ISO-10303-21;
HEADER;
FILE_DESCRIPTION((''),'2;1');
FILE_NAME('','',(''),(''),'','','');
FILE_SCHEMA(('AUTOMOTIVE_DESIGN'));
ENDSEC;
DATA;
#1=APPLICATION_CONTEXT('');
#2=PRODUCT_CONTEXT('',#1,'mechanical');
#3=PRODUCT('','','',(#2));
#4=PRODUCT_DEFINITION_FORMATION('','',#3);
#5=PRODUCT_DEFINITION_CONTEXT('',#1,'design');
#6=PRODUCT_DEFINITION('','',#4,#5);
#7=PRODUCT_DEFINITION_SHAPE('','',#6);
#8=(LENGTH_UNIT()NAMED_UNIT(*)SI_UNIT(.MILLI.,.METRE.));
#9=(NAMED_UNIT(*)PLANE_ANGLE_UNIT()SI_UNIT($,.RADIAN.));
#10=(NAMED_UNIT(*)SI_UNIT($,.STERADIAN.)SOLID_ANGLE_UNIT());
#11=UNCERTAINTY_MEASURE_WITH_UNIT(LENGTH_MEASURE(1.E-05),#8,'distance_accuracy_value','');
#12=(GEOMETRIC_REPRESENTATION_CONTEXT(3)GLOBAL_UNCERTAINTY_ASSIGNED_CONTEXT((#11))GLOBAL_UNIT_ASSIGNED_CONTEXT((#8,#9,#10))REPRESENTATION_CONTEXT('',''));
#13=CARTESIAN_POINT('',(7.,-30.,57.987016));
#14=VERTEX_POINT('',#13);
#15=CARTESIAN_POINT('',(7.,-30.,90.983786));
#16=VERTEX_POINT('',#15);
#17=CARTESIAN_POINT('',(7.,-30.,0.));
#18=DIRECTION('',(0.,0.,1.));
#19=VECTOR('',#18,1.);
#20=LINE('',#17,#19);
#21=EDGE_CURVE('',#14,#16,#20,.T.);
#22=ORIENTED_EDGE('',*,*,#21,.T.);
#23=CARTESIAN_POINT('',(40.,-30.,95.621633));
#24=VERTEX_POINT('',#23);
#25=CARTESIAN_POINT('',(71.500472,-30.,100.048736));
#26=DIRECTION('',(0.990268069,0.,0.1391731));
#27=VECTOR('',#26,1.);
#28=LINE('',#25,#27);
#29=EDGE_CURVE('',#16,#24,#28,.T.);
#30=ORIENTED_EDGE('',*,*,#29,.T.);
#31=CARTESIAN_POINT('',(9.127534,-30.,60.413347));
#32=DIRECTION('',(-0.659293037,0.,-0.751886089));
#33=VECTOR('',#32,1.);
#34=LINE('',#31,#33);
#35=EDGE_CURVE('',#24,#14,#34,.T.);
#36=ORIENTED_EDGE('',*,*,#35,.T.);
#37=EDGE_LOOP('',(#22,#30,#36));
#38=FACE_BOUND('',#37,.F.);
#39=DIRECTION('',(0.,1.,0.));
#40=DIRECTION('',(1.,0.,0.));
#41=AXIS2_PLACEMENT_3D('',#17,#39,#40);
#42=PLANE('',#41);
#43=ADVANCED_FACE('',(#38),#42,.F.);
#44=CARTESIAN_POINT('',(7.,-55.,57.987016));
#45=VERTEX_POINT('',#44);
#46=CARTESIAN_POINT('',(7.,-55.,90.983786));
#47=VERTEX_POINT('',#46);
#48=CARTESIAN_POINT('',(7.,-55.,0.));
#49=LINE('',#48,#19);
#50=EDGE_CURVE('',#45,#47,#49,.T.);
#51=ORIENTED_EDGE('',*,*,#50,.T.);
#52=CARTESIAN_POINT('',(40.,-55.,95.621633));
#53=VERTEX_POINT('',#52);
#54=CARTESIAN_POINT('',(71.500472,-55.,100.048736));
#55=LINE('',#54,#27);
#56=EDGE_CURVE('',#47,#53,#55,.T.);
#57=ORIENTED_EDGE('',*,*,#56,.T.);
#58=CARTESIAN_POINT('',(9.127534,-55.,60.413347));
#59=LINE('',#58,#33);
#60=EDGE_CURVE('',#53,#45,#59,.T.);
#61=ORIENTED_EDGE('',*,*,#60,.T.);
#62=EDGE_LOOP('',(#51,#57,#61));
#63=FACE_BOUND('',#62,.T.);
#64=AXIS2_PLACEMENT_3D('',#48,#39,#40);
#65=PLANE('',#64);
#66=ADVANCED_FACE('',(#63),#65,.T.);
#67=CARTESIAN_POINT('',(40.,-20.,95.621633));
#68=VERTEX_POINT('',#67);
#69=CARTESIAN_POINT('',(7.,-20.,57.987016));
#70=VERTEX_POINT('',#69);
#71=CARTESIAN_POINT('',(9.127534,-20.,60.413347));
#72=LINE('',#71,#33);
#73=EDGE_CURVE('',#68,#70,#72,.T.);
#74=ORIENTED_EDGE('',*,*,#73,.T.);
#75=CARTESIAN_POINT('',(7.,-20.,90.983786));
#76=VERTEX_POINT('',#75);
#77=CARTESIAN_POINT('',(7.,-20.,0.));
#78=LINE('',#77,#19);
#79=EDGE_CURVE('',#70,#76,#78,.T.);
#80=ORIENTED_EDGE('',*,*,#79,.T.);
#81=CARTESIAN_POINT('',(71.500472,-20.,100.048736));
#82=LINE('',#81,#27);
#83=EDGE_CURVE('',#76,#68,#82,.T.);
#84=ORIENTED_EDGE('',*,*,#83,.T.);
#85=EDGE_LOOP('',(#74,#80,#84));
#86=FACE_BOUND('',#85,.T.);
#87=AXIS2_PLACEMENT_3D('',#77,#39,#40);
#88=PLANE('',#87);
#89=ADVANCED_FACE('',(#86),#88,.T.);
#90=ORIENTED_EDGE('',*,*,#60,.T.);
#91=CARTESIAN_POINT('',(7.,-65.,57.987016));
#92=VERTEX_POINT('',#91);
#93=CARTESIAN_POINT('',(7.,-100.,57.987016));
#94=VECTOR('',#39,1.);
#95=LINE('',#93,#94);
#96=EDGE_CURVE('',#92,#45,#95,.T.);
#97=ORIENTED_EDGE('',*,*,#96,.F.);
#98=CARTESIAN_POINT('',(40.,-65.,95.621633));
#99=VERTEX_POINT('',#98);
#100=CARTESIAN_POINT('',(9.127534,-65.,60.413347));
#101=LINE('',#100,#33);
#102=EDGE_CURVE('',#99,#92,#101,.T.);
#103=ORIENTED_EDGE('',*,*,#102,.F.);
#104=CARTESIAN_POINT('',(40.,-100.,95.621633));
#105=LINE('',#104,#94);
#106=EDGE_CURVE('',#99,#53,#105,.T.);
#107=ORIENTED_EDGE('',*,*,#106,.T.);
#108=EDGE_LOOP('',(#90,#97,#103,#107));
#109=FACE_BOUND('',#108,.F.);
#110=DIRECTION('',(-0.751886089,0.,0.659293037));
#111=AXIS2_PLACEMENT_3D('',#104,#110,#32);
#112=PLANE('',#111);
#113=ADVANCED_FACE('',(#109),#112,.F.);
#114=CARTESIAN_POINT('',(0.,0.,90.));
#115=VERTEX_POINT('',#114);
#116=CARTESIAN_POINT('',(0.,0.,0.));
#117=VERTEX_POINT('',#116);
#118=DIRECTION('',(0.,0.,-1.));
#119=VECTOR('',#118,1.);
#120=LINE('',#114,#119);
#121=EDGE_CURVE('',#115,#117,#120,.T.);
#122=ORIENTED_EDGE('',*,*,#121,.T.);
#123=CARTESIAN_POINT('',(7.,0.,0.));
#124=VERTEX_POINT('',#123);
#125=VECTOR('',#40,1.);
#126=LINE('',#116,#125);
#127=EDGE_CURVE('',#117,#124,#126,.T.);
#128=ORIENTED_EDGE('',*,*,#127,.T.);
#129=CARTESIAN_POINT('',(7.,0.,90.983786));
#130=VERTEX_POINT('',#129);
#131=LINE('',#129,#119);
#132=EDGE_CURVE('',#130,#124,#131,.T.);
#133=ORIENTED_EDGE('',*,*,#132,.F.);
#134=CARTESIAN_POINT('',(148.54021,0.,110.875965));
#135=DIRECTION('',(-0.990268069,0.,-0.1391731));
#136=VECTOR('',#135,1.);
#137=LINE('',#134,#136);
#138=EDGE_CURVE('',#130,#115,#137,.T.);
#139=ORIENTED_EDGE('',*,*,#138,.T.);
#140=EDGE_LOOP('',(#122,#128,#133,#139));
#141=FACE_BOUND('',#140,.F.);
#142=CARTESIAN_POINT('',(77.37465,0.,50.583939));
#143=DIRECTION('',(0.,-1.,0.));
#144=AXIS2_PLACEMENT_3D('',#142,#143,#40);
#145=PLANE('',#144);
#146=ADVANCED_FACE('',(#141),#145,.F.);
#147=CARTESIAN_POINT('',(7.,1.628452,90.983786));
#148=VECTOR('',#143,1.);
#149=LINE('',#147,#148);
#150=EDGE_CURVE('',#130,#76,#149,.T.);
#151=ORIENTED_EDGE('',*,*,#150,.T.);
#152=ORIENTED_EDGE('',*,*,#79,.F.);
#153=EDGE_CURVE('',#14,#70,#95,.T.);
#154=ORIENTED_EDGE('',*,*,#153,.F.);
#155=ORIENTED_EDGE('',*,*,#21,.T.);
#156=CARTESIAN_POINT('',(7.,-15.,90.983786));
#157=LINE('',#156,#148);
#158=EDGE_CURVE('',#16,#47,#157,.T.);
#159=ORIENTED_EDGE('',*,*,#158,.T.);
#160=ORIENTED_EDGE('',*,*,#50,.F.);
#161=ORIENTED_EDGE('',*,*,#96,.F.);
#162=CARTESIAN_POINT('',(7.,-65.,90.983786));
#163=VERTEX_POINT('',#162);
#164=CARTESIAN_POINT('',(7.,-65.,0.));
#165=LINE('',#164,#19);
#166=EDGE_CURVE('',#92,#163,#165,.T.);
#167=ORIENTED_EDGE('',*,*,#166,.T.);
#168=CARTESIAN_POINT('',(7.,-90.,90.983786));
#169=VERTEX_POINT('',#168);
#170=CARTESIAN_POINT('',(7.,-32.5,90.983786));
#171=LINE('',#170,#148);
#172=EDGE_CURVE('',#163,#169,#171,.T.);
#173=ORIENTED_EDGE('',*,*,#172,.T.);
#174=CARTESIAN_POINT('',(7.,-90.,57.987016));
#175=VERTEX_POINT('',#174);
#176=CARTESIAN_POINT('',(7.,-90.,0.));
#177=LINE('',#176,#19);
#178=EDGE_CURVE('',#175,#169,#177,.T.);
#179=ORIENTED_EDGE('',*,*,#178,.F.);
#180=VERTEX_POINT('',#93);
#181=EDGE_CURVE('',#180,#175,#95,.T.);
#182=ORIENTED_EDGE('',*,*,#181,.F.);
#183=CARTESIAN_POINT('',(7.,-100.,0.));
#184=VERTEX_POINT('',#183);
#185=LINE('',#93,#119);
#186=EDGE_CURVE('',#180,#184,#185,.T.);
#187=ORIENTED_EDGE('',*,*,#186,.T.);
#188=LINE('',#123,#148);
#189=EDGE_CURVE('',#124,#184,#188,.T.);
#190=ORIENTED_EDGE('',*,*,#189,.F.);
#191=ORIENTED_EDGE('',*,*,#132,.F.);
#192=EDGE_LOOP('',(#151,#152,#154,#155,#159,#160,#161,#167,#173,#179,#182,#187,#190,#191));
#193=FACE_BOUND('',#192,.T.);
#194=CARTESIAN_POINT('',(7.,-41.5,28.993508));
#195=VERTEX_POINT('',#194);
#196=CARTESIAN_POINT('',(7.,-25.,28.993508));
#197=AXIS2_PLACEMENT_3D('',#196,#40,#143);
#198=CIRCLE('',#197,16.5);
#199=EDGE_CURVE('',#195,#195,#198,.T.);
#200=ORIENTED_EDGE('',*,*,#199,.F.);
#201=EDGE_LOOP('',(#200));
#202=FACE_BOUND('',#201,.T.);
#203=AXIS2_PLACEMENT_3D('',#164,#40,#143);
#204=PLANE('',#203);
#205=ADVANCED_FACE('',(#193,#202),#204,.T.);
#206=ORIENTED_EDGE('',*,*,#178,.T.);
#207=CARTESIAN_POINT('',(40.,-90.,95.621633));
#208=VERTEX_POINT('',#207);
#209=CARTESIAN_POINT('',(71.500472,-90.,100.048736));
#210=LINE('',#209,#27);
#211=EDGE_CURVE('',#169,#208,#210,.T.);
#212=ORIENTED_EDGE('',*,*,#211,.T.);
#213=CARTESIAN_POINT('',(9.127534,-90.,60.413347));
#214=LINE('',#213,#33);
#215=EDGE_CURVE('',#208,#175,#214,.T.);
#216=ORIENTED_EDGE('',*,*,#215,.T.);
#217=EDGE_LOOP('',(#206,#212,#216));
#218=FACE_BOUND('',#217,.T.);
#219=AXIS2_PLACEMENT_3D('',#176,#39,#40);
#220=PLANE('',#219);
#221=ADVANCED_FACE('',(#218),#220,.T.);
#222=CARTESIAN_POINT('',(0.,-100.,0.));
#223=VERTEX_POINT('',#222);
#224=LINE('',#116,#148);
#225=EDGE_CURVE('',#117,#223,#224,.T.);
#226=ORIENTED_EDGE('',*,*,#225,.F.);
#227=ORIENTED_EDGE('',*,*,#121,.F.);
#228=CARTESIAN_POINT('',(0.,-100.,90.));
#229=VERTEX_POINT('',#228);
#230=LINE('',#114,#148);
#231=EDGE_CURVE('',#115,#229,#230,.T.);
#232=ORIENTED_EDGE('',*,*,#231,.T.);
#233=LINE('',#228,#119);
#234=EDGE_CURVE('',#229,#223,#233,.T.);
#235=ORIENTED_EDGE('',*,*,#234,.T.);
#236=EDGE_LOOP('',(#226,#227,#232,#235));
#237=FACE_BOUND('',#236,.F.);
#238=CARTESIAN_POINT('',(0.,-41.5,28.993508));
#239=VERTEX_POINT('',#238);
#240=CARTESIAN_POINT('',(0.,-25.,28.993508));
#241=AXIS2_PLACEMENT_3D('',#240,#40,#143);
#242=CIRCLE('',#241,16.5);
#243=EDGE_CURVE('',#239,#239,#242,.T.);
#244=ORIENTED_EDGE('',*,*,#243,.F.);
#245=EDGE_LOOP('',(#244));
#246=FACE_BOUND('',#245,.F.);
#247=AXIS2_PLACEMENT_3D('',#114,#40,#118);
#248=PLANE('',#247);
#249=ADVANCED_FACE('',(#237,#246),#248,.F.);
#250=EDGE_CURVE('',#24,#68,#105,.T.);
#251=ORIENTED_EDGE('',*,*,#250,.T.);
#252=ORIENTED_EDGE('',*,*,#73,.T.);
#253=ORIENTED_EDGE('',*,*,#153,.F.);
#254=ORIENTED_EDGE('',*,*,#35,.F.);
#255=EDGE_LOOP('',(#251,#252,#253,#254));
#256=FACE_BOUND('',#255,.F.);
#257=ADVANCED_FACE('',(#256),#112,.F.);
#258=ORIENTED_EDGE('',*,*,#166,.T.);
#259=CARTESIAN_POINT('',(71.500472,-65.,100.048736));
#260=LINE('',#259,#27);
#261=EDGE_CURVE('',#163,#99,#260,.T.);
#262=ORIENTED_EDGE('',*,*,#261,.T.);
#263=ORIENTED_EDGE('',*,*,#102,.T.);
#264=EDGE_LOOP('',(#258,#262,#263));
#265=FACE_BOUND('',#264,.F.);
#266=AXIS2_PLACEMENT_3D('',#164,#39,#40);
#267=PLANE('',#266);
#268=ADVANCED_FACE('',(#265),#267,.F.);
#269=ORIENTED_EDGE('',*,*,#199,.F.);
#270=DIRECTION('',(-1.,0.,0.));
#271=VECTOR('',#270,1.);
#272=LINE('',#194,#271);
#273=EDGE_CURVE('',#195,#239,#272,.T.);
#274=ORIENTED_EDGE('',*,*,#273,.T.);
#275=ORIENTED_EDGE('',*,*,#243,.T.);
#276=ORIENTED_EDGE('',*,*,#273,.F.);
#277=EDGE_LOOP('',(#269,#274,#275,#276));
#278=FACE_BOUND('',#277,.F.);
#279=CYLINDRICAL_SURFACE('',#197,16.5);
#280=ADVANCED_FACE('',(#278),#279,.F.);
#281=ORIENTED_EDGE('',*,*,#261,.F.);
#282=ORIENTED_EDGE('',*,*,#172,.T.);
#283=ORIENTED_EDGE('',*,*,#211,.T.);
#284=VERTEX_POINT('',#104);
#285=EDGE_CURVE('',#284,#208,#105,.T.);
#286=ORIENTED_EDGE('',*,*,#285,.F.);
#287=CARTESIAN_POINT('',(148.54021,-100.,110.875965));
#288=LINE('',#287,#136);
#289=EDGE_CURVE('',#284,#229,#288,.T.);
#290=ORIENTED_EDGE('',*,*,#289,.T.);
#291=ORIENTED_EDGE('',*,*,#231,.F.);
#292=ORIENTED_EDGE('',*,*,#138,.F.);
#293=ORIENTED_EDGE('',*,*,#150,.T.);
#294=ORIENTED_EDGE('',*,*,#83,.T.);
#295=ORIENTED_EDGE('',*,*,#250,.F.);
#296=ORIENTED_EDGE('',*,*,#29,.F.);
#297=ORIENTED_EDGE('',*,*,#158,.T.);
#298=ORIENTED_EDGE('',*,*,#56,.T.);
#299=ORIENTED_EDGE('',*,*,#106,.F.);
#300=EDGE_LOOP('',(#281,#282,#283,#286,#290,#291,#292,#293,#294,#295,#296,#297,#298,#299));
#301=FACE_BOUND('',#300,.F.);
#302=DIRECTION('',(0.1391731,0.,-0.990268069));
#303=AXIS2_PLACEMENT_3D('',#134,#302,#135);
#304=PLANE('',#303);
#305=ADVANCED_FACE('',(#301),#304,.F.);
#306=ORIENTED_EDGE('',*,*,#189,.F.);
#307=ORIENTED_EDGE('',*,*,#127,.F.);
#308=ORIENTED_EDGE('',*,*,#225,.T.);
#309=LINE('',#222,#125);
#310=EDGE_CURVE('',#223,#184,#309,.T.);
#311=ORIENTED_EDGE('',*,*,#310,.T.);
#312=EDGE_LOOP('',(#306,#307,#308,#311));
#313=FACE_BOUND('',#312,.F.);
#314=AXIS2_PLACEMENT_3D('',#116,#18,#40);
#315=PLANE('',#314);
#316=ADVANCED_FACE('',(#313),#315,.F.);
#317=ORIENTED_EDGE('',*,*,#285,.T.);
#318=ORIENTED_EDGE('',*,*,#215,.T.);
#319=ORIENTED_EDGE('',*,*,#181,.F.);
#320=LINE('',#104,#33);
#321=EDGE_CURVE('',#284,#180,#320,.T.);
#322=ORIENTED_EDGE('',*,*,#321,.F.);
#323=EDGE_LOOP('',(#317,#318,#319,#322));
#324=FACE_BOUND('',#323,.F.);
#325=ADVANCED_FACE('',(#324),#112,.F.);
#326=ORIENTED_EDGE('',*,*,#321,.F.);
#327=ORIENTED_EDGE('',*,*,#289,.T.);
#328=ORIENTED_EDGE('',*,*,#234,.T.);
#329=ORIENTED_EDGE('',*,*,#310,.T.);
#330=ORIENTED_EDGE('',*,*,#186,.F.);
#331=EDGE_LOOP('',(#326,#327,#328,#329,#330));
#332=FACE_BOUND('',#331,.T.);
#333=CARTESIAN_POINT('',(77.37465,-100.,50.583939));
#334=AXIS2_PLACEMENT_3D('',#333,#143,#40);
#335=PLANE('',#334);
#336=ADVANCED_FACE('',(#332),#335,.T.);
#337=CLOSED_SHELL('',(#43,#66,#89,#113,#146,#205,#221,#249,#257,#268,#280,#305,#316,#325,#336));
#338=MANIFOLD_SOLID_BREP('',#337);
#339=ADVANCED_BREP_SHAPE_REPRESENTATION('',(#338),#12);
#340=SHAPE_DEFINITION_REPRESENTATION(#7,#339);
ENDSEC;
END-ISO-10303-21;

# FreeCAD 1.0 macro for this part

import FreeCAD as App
import Part
import Sketcher
Q = App.Units.Quantity


def add_polygon(sketch, points):
    """Adds a closed chain of lines whose ends are joined by coincident constraints."""
    first, n = sketch.GeometryCount, len(points)
    for a, b in zip(points, points[1:] + points[:1]):
        sketch.addGeometry(Part.LineSegment(App.Vector(*a, 0), App.Vector(*b, 0)), False)
    for i in range(n):
        sketch.addConstraint(Sketcher.Constraint("Coincident", first + i, 2, first + (i + 1) % n, 1))

doc = App.newDocument("Part")
body = doc.addObject("PartDesign::Body", "Body")

# Sketch on XZ plane
sketch1 = body.newObject("Sketcher::SketchObject", "Sketch")
sketch1.AttachmentSupport = (doc.getObject("XZ_Plane"), [""])
sketch1.MapMode = "FlatFace"
add_polygon(sketch1, [(0, 90), (0, 0), (149, 0), (149, 111)])  # lines 0-3
sketch1.addConstraint([
    Sketcher.Constraint("Vertical", 0),
    Sketcher.Constraint("Horizontal", 1),
    Sketcher.Constraint("Vertical", 2),
    Sketcher.Constraint("Coincident", 0, 2, -1, 1),
    Sketcher.Constraint("DistanceY", 0, 2, 0, 1, Q("90 mm")),
    Sketcher.Constraint("Angle", 3, Q("-172 deg")),
    Sketcher.Constraint("Distance", 3, Q("150 mm")),
])
pad1 = body.newObject("PartDesign::Pad", "Pad")
pad1.Profile = sketch1
pad1.Length = 100

# Sketch on XZ plane
sketch2 = body.newObject("Sketcher::SketchObject", "Sketch001")
sketch2.AttachmentSupport = (doc.getObject("XZ_Plane"), [""])
sketch2.MapMode = "FlatFace"
sketch2.AttachmentOffset = App.Placement(App.Vector(0, 0, 100), App.Rotation())
add_polygon(sketch2, [(7, 0), (149, 0), (149, 169), (40, 169), (40, 96), (7, 58)])  # lines 0-5
sketch2.addConstraint([
    Sketcher.Constraint("Horizontal", 0),
    Sketcher.Constraint("Vertical", 1),
    Sketcher.Constraint("Horizontal", 2),
    Sketcher.Constraint("Vertical", 3),
    Sketcher.Constraint("Vertical", 5),
    Sketcher.Constraint("PointOnObject", 0, 2, -1),
    Sketcher.Constraint("DistanceX", -1, 1, 2, 2, Q("40 mm")),
    Sketcher.Constraint("DistanceX", -1, 1, 4, 2, Q("7 mm")),
    Sketcher.Constraint("DistanceX", 0, 1, 0, 2, Q("141.54021 mm")),
    Sketcher.Constraint("DistanceY", 3, 2, 3, 1, Q("73.603151 mm")),
    Sketcher.Constraint("DistanceY", 1, 1, 1, 2, Q("169.224784 mm")),
    Sketcher.Constraint("DistanceY", 5, 2, 5, 1, Q("57.987016 mm")),
])
pocket1 = body.newObject("PartDesign::Pocket", "Pocket")
pocket1.Profile = sketch2
pocket1.Length = 100

# Sketch on XY plane
sketch3 = body.newObject("Sketcher::SketchObject", "Sketch002")
sketch3.AttachmentSupport = (doc.getObject("XY_Plane"), [""])
sketch3.MapMode = "FlatFace"
add_polygon(sketch3, [(7, -20), (7, 3), (44, 3), (44, -20)])  # lines 0-3
add_polygon(sketch3, [(7, -55), (7, -30), (44, -30), (44, -55)])  # lines 4-7
add_polygon(sketch3, [(7, -90), (7, -65), (44, -65), (44, -90)])  # lines 8-11
sketch3.addConstraint([
    Sketcher.Constraint("Vertical", 0),
    Sketcher.Constraint("Horizontal", 1),
    Sketcher.Constraint("Vertical", 2),
    Sketcher.Constraint("Horizontal", 3),
    Sketcher.Constraint("Vertical", 4),
    Sketcher.Constraint("Horizontal", 5),
    Sketcher.Constraint("Vertical", 6),
    Sketcher.Constraint("Horizontal", 7),
    Sketcher.Constraint("Vertical", 8),
    Sketcher.Constraint("Horizontal", 9),
    Sketcher.Constraint("Vertical", 10),
    Sketcher.Constraint("Horizontal", 11),
    Sketcher.Constraint("Vertical", 3, 2, 4, 2),
    Sketcher.Constraint("Vertical", 2, 2, 5, 2),
    Sketcher.Constraint("Vertical", 7, 2, 8, 2),
    Sketcher.Constraint("Vertical", 6, 2, 9, 2),
    Sketcher.Constraint("Equal", 6, 8),
    Sketcher.Constraint("DistanceY", 4, 1, 4, 2, Q("25 mm")),
    Sketcher.Constraint("DistanceX", -1, 1, 0, 2, Q("7 mm")),
    Sketcher.Constraint("DistanceY", 2, 2, -1, 1, Q("20 mm")),
    Sketcher.Constraint("DistanceY", 4, 2, -1, 1, Q("30 mm")),
    Sketcher.Constraint("DistanceY", 8, 2, -1, 1, Q("65 mm")),
    Sketcher.Constraint("DistanceX", 1, 1, 1, 2, Q("37.074 mm")),
    Sketcher.Constraint("DistanceY", 0, 1, 0, 2, Q("23.256904 mm")),
])
pocket2 = body.newObject("PartDesign::Pocket", "Pocket001")
pocket2.Profile = sketch3
pocket2.Length = 150
pocket2.Reversed = True

# Sketch on YZ plane
sketch4 = body.newObject("Sketcher::SketchObject", "Sketch003")
sketch4.AttachmentSupport = (doc.getObject("YZ_Plane"), [""])
sketch4.MapMode = "FlatFace"
sketch4.AttachmentOffset = App.Placement(App.Vector(0, 0, 7), App.Rotation())
sketch4.addGeometry(Part.Circle(App.Vector(-25, 29, 0), App.Vector(0, 0, 1), 16), False)
sketch4.addConstraint([
    Sketcher.Constraint("Diameter", 0, Q("33 mm")),
    Sketcher.Constraint("DistanceX", 0, 3, -1, 1, Q("25 mm")),
    Sketcher.Constraint("DistanceY", -1, 1, 0, 3, Q("28.993508 mm")),
])
pocket3 = body.newObject("PartDesign::Pocket", "Pocket002")
pocket3.Profile = sketch4
pocket3.Length = 25

doc.recompute()
